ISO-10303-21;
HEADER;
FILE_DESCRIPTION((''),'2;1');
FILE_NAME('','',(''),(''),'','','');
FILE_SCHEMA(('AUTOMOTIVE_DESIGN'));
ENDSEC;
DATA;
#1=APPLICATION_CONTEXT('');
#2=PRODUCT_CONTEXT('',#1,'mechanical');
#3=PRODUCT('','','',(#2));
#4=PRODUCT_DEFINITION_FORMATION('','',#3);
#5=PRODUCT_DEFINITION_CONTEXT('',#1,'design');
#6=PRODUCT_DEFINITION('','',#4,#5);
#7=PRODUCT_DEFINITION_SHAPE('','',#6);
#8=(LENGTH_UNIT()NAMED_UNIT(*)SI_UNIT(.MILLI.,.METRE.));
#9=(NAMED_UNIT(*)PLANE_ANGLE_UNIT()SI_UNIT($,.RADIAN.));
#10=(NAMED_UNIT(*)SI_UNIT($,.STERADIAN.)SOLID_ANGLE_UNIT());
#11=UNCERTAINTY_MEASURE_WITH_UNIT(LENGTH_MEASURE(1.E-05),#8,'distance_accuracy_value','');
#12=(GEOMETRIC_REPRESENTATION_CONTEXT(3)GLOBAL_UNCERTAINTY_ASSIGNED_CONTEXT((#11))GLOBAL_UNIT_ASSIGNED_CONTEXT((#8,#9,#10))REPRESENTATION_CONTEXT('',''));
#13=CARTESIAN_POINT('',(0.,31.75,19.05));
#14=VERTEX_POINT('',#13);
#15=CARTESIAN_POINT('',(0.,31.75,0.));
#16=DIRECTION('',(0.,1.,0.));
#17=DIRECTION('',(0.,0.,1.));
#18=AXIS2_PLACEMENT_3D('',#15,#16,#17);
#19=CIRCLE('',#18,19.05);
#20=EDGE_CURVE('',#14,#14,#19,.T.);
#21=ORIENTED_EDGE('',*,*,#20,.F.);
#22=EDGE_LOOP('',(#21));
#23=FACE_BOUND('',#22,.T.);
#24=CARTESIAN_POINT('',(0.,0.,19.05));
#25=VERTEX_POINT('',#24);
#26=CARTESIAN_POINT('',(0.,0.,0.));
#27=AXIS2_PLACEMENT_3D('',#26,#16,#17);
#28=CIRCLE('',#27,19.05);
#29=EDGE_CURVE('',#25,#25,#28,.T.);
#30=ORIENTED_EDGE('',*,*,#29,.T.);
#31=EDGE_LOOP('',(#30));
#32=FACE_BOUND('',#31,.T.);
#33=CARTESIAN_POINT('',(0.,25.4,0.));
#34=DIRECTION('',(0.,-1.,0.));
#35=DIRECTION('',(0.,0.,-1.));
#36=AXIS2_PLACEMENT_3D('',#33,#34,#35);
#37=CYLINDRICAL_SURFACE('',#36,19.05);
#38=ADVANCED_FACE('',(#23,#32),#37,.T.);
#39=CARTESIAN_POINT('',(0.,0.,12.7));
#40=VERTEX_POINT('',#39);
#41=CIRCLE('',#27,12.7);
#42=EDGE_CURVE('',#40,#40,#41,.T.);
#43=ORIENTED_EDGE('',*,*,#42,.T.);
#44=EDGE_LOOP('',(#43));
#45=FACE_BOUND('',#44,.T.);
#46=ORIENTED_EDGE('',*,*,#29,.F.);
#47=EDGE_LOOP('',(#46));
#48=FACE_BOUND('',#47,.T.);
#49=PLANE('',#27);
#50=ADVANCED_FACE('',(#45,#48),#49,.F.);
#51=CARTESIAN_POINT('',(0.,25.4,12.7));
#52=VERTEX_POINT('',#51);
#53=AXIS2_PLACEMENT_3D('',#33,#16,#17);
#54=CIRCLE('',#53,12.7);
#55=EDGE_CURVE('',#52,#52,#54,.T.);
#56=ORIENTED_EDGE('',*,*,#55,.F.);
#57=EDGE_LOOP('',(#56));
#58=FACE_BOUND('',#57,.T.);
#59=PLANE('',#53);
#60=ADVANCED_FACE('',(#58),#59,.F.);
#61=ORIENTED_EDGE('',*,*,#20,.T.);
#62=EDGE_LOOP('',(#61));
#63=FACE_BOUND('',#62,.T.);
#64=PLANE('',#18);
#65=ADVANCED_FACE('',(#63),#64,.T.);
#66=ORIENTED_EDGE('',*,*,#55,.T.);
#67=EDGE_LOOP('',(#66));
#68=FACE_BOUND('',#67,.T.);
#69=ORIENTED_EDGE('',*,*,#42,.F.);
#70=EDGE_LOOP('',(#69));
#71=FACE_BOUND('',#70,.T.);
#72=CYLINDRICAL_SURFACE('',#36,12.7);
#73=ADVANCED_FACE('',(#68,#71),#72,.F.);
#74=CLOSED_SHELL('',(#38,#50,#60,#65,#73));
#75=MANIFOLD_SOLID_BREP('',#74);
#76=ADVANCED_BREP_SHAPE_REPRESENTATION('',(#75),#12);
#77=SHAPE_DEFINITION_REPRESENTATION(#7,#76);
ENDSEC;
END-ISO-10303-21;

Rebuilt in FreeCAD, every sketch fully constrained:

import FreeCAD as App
import Part
import Sketcher
from FreeCAD import Vector
Q = App.Units.Quantity

doc = App.newDocument("Part")
body = doc.addObject("PartDesign::Body", "Body")

sketch1 = doc.addObject("Sketcher::SketchObject", "Sketch")
body.addObject(sketch1)
sketch1.AttachmentSupport = (doc.XZ_Plane, [""])
sketch1.MapMode = "FlatFace"
sketch1.addGeometry(Part.Circle(Vector(0, 0, 0), Vector(0, 0, 1), 19.05), False)
sketch1.addGeometry(Part.Circle(Vector(0, 0, 0), Vector(0, 0, 1), 12.7), False)
sketch1.addConstraint(Sketcher.Constraint("Coincident", 0, 3, -1, 1))
sketch1.addConstraint(Sketcher.Constraint("Coincident", 1, 3, -1, 1))
sketch1.addConstraint(Sketcher.Constraint("Diameter", 1, Q("1 in")))
sketch1.addConstraint(Sketcher.Constraint("Diameter", 0, Q("1.5 in")))
pad1 = doc.addObject("PartDesign::Pad", "Pad")
body.addObject(pad1)
pad1.Profile = sketch1
pad1.Length = Q("1 in")
pad1.Reversed = True

sketch2 = doc.addObject("Sketcher::SketchObject", "Sketch001")
body.addObject(sketch2)
sketch2.AttachmentSupport = (doc.XZ_Plane, [""])
sketch2.MapMode = "FlatFace"
sketch2.AttachmentOffset = App.Placement(Vector(0, 0, -1 * 25.4), App.Rotation())
sketch2.addGeometry(Part.Circle(Vector(0, 0, 0), Vector(0, 0, 1), 19.05), False)
sketch2.addConstraint(Sketcher.Constraint("Coincident", 0, 3, -1, 1))
sketch2.addConstraint(Sketcher.Constraint("Diameter", 0, Q("1.5 in")))
pad2 = doc.addObject("PartDesign::Pad", "Pad001")
body.addObject(pad2)
pad2.Profile = sketch2
pad2.Length = Q("0.25 in")
pad2.Reversed = True

doc.recompute()
